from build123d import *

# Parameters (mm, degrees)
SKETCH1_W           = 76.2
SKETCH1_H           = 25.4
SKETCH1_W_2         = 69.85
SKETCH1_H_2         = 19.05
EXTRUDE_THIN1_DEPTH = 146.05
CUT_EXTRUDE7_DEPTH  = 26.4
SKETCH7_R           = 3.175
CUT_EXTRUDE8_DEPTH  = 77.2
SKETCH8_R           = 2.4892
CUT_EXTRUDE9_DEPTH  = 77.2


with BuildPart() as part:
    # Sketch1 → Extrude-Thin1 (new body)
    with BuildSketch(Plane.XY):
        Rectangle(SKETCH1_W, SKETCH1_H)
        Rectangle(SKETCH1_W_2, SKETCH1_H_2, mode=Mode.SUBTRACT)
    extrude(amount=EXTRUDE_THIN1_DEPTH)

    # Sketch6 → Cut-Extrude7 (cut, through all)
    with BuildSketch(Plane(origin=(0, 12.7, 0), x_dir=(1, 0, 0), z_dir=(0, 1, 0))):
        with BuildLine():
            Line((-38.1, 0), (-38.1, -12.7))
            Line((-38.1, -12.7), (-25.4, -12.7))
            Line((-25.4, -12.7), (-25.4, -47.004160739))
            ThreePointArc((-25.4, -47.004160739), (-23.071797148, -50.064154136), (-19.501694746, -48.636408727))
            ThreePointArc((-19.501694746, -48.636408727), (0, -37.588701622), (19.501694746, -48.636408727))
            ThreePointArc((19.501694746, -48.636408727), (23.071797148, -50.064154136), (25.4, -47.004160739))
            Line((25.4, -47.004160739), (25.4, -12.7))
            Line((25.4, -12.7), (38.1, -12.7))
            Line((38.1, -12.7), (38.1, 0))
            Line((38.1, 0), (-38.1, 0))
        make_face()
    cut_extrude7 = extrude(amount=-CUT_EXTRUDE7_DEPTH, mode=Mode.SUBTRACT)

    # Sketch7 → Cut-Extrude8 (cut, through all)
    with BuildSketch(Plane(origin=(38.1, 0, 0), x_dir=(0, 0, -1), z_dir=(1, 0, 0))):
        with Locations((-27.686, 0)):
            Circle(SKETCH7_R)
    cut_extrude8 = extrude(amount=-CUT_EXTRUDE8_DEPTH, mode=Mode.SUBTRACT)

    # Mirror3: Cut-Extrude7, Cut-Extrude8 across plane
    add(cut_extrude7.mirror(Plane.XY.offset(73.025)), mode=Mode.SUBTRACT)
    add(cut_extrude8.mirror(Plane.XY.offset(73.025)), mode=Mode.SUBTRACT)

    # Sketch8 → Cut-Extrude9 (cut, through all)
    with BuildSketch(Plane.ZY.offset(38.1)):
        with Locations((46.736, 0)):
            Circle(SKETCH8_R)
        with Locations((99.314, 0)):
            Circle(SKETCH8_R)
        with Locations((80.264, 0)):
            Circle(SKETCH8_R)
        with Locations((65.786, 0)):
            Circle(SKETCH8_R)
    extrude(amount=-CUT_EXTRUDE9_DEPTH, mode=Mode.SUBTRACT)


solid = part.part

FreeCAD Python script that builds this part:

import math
import FreeCAD as App
import Part
import Sketcher

V = App.Vector
Q = App.Units.Quantity


def add_polygon(sketch, points):
    """Adds a closed chain of lines whose ends are joined by coincident constraints."""
    first, n = sketch.GeometryCount, len(points)
    for a, b in zip(points, points[1:] + points[:1]):
        sketch.addGeometry(Part.LineSegment(App.Vector(*a, 0), App.Vector(*b, 0)), False)
    for i in range(n):
        sketch.addConstraint(Sketcher.Constraint("Coincident", first + i, 2, first + (i + 1) % n, 1))

doc = App.newDocument("Part")
body = doc.addObject("PartDesign::Body", "Body")

# Sketch on XY plane
sketch1 = body.newObject("Sketcher::SketchObject", "Sketch")
sketch1.AttachmentSupport = (doc.getObject("XY_Plane"), [""])
sketch1.MapMode = "FlatFace"
add_polygon(sketch1, [(-38, 13), (-38, -13), (38, -13), (38, 13)])  # lines 0-3
add_polygon(sketch1, [(35, -10), (-35, -10), (-35, 10), (35, 10)])  # lines 4-7
sketch1.addConstraint([
    Sketcher.Constraint("Vertical", 0),
    Sketcher.Constraint("Horizontal", 1),
    Sketcher.Constraint("Vertical", 2),
    Sketcher.Constraint("Horizontal", 3),
    Sketcher.Constraint("Horizontal", 4),
    Sketcher.Constraint("Vertical", 5),
    Sketcher.Constraint("Horizontal", 6),
    Sketcher.Constraint("Vertical", 7),
    Sketcher.Constraint("Symmetric", 0, 2, 2, 2, -1, 1),
    Sketcher.Constraint("Symmetric", 4, 2, 6, 2, -1, 1),
    Sketcher.Constraint("DistanceX", 1, 1, 1, 2, Q("3 in")),
    Sketcher.Constraint("DistanceY", 0, 2, 0, 1, Q("1 in")),
    Sketcher.Constraint("DistanceX", 4, 2, 4, 1, Q("2.75 in")),
    Sketcher.Constraint("DistanceY", 5, 1, 5, 2, Q("0.75 in")),
])
pad1 = body.newObject("PartDesign::Pad", "Pad")
pad1.Profile = sketch1
pad1.Length = Q("5.75 in")

# Sketch on XZ plane
sketch2 = body.newObject("Sketcher::SketchObject", "Sketch001")
sketch2.AttachmentSupport = (doc.getObject("XZ_Plane"), [""])
sketch2.MapMode = "FlatFace"
sketch2.AttachmentOffset = App.Placement(V(0, 0, -0.5 * 25.4), App.Rotation())
sketch2.addGeometry([
    Part.LineSegment(V(-38.1, 0, 0), V(-38.1, 12.7, 0)),  # 0
    Part.LineSegment(V(-38.1, 12.7, 0), V(-25.4, 12.7, 0)),  # 1
    Part.LineSegment(V(-25.4, 12.7, 0), V(-25.4, 47, 0)),  # 2
    Part.ArcOfCircle(Part.Circle(V(-22.2, 47, 0), V(0, 0, 1), 3.2), math.radians(31), math.radians(180)),  # 3
    Part.ArcOfCircle(Part.Circle(V(0, 60.3, 0), V(0, 0, 1), 22.7), math.radians(-149), math.radians(-31)),  # 4
    Part.ArcOfCircle(Part.Circle(V(22.2, 47, 0), V(0, 0, 1), 3.2), math.radians(0), math.radians(149)),  # 5
    Part.LineSegment(V(25.4, 47, 0), V(25.4, 12.7, 0)),  # 6
    Part.LineSegment(V(25.4, 12.7, 0), V(38.1, 12.7, 0)),  # 7
    Part.LineSegment(V(38.1, 12.7, 0), V(38.1, 0, 0)),  # 8
    Part.LineSegment(V(38.1, 0, 0), V(-38.1, 0, 0)),  # 9
], False)
sketch2.addConstraint([
    Sketcher.Constraint("Coincident", 0, 2, 1, 1),
    Sketcher.Constraint("Coincident", 1, 2, 2, 1),
    Sketcher.Constraint("Tangent", 2, 2, 3, 2),
    Sketcher.Constraint("Tangent", 3, 1, 4, 1),
    Sketcher.Constraint("Tangent", 4, 2, 5, 2),
    Sketcher.Constraint("Tangent", 5, 1, 6, 1),
    Sketcher.Constraint("Coincident", 6, 2, 7, 1),
    Sketcher.Constraint("Coincident", 7, 2, 8, 1),
    Sketcher.Constraint("Coincident", 8, 2, 9, 1),
    Sketcher.Constraint("Coincident", 9, 2, 0, 1),
    Sketcher.Constraint("Vertical", 0),
    Sketcher.Constraint("Horizontal", 1),
    Sketcher.Constraint("Vertical", 2),
    Sketcher.Constraint("Vertical", 6),
    Sketcher.Constraint("Horizontal", 7),
    Sketcher.Constraint("Vertical", 8),
    Sketcher.Constraint("Horizontal", 9),
    Sketcher.Constraint("Equal", 3, 5),
    Sketcher.Constraint("Symmetric", 8, 2, 9, 2, -1, 1),
    Sketcher.Constraint("Symmetric", 3, 3, 5, 3, -2),
    Sketcher.Constraint("Horizontal", 1, 2, 6, 2),
    Sketcher.Constraint("Equal", 7, 0),
    Sketcher.Constraint("DistanceX", 9, 2, 9, 1, Q("3 in")),
    Sketcher.Constraint("DistanceX", 1, 1, 1, 2, Q("0.5 in")),
    Sketcher.Constraint("Radius", 3, Q("0.125 in")),
    Sketcher.Constraint("Radius", 4, Q("22.736298 mm")),
    Sketcher.Constraint("DistanceY", -1, 1, 4, 3, Q("2.375 in")),
])
pocket1 = body.newObject("PartDesign::Pocket", "Pocket")
pocket1.Profile = sketch2
pocket1.Type = "ThroughAll"
pocket1.Reversed = True

# Sketch on YZ plane
sketch3 = body.newObject("Sketcher::SketchObject", "Sketch002")
sketch3.AttachmentSupport = (doc.getObject("YZ_Plane"), [""])
sketch3.MapMode = "FlatFace"
sketch3.AttachmentOffset = App.Placement(V(0, 0, 1.5 * 25.4), App.Rotation())
sketch3.addGeometry(Part.Circle(V(0, 27.7, 0), V(0, 0, 1), 3.2), False)
sketch3.addConstraint([
    Sketcher.Constraint("PointOnObject", 0, 3, -2),
    Sketcher.Constraint("Diameter", 0, Q("0.25 in")),
    Sketcher.Constraint("DistanceY", -1, 1, 0, 3, Q("1.09 in")),
])
pocket2 = body.newObject("PartDesign::Pocket", "Pocket001")
pocket2.Profile = sketch3
pocket2.Type = "ThroughAll"
doc.recompute()

datumplane = body.newObject("PartDesign::Plane", "DatumPlane")
datumplane.AttachmentSupport = (doc.getObject("XY_Plane"), [""])
datumplane.MapMode = "FlatFace"
datumplane.AttachmentOffset = App.Placement(V(0, 0, 2.875 * 25.4), App.Rotation())
mirrored = body.newObject("PartDesign::Mirrored", "Mirrored")
mirrored.Originals = [pocket1, pocket2]
mirrored.MirrorPlane = (datumplane, [""])
body.Tip = mirrored

# Sketch on YZ plane
sketch4 = body.newObject("Sketcher::SketchObject", "Sketch003")
sketch4.AttachmentSupport = (doc.getObject("YZ_Plane"), [""])
sketch4.MapMode = "FlatFace"
sketch4.AttachmentOffset = App.Placement(V(0, 0, -1.5 * 25.4), App.Rotation())
sketch4.addGeometry([
    Part.Circle(V(0, 46.7, 0), V(0, 0, 1), 2.5),
    Part.Circle(V(0, 99.3, 0), V(0, 0, 1), 2.5),
    Part.Circle(V(0, 80.3, 0), V(0, 0, 1), 2.5),
    Part.Circle(V(0, 65.8, 0), V(0, 0, 1), 2.5),
], False)
sketch4.addConstraint([
    Sketcher.Constraint("Equal", 0, 1),
    Sketcher.Constraint("Equal", 1, 2),
    Sketcher.Constraint("Equal", 2, 3),
    Sketcher.Constraint("PointOnObject", 0, 3, -2),
    Sketcher.Constraint("PointOnObject", 1, 3, -2),
    Sketcher.Constraint("PointOnObject", 2, 3, -2),
    Sketcher.Constraint("PointOnObject", 3, 3, -2),
    Sketcher.Constraint("Diameter", 0, Q("0.196 in")),
    Sketcher.Constraint("DistanceY", -1, 1, 0, 3, Q("1.84 in")),
    Sketcher.Constraint("DistanceY", -1, 1, 1, 3, Q("3.91 in")),
    Sketcher.Constraint("DistanceY", -1, 1, 2, 3, Q("3.16 in")),
    Sketcher.Constraint("DistanceY", -1, 1, 3, 3, Q("2.59 in")),
])
pocket3 = body.newObject("PartDesign::Pocket", "Pocket002")
pocket3.Profile = sketch4
pocket3.Type = "ThroughAll"
pocket3.Reversed = True

doc.recompute()
